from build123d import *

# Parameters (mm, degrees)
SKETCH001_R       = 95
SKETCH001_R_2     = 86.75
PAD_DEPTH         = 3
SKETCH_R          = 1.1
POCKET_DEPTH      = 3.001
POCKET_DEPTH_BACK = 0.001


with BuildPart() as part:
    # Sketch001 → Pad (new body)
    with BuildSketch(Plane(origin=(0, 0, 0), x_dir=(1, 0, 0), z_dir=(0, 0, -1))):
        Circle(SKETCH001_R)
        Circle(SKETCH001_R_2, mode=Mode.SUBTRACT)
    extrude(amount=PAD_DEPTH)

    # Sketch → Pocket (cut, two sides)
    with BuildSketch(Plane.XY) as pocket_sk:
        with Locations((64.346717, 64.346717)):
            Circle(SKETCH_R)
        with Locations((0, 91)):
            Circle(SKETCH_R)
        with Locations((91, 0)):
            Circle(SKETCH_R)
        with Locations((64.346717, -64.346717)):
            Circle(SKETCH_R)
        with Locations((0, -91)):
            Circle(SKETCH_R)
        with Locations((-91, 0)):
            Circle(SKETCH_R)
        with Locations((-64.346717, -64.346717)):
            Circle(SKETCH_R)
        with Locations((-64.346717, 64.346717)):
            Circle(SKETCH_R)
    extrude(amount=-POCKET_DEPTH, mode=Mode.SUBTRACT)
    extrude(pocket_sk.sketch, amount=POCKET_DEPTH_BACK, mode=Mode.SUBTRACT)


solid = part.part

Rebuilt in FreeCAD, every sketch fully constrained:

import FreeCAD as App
import Part
import Sketcher

V = App.Vector
Q = App.Units.Quantity

doc = App.newDocument("Part")
params = doc.addObject("Spreadsheet::Sheet", "Params")
for row, (alias, value) in enumerate([
    ("sketch1_diameter", "190 mm"),
    ("sketch1_diameter2", "173.5 mm"),
    ("pad1_length", "3 mm"),
    ("sketch2_diameter", "2.2 mm"),
], start=1):
    params.set(f"A{row}", alias)
    params.set(f"B{row}", "=" + value)
    params.setAlias(f"B{row}", alias)

body = doc.addObject("PartDesign::Body", "Body")

sketch1 = body.newObject("Sketcher::SketchObject", "Sketch")
sketch1.AttachmentSupport = (doc.getObject("XY_Plane"), [""])
sketch1.MapMode = "FlatFace"
sketch1.addGeometry([
    Part.Circle(V(0, 0, 0), V(0, 0, 1), 95),
    Part.Circle(V(0, 0, 0), V(0, 0, 1), 87),
], False)
sketch1.addConstraint([
    Sketcher.Constraint("Coincident", 0, 3, -1, 1),
    Sketcher.Constraint("Coincident", 1, 3, -1, 1),
    Sketcher.Constraint("Diameter", 0, Q("190 mm")),
    Sketcher.Constraint("Diameter", 1, Q("173.5 mm")),
])
sketch1.setExpression("Constraints[2]", "Params.sketch1_diameter")
sketch1.setExpression("Constraints[3]", "Params.sketch1_diameter2")
pad1 = body.newObject("PartDesign::Pad", "Pad")
pad1.Profile = sketch1
pad1.setExpression("Length", "Params.pad1_length")
pad1.Reversed = True

sketch2 = body.newObject("Sketcher::SketchObject", "Sketch001")
sketch2.AttachmentSupport = (doc.getObject("XY_Plane"), [""])
sketch2.MapMode = "FlatFace"
sketch2.addGeometry([
    Part.Circle(V(64.3, 64.3, 0), V(0, 0, 1), 1.1),
    Part.Circle(V(0, 91, 0), V(0, 0, 1), 1.1),
    Part.Circle(V(91, 0, 0), V(0, 0, 1), 1.1),
    Part.Circle(V(64.3, -64.3, 0), V(0, 0, 1), 1.1),
    Part.Circle(V(0, -91, 0), V(0, 0, 1), 1.1),
    Part.Circle(V(-91, 0, 0), V(0, 0, 1), 1.1),
    Part.Circle(V(-64.3, -64.3, 0), V(0, 0, 1), 1.1),
    Part.Circle(V(-64.3, 64.3, 0), V(0, 0, 1), 1.1),
], False)
sketch2.addConstraint([
    Sketcher.Constraint("Equal", 0, 1),
    Sketcher.Constraint("Equal", 1, 2),
    Sketcher.Constraint("Equal", 2, 3),
    Sketcher.Constraint("Equal", 3, 4),
    Sketcher.Constraint("Equal", 4, 5),
    Sketcher.Constraint("Equal", 5, 6),
    Sketcher.Constraint("Equal", 6, 7),
    Sketcher.Constraint("Symmetric", 1, 3, 4, 3, -1, 1),
    Sketcher.Constraint("Symmetric", 2, 3, 5, 3, -1, 1),
    Sketcher.Constraint("Symmetric", 0, 3, 6, 3, -1, 1),
    Sketcher.Constraint("Symmetric", 3, 3, 7, 3, -1, 1),
    Sketcher.Constraint("Symmetric", 3, 3, 6, 3, -2),
    Sketcher.Constraint("PointOnObject", 1, 3, -2),
    Sketcher.Constraint("PointOnObject", 2, 3, -1),
    Sketcher.Constraint("Diameter", 0, Q("2.2 mm")),
    Sketcher.Constraint("DistanceY", -1, 1, 1, 3, Q("91 mm")),
    Sketcher.Constraint("DistanceX", -1, 1, 2, 3, Q("91 mm")),
    Sketcher.Constraint("DistanceX", -1, 1, 0, 3, Q("64.346717 mm")),
    Sketcher.Constraint("DistanceY", -1, 1, 0, 3, Q("64.346717 mm")),
])
sketch2.setExpression("Constraints[14]", "Params.sketch2_diameter")
pocket1 = body.newObject("PartDesign::Pocket", "Pocket")
pocket1.Profile = sketch2
pocket1.Type = "ThroughAll"
pocket1.Midplane = True

doc.recompute()
